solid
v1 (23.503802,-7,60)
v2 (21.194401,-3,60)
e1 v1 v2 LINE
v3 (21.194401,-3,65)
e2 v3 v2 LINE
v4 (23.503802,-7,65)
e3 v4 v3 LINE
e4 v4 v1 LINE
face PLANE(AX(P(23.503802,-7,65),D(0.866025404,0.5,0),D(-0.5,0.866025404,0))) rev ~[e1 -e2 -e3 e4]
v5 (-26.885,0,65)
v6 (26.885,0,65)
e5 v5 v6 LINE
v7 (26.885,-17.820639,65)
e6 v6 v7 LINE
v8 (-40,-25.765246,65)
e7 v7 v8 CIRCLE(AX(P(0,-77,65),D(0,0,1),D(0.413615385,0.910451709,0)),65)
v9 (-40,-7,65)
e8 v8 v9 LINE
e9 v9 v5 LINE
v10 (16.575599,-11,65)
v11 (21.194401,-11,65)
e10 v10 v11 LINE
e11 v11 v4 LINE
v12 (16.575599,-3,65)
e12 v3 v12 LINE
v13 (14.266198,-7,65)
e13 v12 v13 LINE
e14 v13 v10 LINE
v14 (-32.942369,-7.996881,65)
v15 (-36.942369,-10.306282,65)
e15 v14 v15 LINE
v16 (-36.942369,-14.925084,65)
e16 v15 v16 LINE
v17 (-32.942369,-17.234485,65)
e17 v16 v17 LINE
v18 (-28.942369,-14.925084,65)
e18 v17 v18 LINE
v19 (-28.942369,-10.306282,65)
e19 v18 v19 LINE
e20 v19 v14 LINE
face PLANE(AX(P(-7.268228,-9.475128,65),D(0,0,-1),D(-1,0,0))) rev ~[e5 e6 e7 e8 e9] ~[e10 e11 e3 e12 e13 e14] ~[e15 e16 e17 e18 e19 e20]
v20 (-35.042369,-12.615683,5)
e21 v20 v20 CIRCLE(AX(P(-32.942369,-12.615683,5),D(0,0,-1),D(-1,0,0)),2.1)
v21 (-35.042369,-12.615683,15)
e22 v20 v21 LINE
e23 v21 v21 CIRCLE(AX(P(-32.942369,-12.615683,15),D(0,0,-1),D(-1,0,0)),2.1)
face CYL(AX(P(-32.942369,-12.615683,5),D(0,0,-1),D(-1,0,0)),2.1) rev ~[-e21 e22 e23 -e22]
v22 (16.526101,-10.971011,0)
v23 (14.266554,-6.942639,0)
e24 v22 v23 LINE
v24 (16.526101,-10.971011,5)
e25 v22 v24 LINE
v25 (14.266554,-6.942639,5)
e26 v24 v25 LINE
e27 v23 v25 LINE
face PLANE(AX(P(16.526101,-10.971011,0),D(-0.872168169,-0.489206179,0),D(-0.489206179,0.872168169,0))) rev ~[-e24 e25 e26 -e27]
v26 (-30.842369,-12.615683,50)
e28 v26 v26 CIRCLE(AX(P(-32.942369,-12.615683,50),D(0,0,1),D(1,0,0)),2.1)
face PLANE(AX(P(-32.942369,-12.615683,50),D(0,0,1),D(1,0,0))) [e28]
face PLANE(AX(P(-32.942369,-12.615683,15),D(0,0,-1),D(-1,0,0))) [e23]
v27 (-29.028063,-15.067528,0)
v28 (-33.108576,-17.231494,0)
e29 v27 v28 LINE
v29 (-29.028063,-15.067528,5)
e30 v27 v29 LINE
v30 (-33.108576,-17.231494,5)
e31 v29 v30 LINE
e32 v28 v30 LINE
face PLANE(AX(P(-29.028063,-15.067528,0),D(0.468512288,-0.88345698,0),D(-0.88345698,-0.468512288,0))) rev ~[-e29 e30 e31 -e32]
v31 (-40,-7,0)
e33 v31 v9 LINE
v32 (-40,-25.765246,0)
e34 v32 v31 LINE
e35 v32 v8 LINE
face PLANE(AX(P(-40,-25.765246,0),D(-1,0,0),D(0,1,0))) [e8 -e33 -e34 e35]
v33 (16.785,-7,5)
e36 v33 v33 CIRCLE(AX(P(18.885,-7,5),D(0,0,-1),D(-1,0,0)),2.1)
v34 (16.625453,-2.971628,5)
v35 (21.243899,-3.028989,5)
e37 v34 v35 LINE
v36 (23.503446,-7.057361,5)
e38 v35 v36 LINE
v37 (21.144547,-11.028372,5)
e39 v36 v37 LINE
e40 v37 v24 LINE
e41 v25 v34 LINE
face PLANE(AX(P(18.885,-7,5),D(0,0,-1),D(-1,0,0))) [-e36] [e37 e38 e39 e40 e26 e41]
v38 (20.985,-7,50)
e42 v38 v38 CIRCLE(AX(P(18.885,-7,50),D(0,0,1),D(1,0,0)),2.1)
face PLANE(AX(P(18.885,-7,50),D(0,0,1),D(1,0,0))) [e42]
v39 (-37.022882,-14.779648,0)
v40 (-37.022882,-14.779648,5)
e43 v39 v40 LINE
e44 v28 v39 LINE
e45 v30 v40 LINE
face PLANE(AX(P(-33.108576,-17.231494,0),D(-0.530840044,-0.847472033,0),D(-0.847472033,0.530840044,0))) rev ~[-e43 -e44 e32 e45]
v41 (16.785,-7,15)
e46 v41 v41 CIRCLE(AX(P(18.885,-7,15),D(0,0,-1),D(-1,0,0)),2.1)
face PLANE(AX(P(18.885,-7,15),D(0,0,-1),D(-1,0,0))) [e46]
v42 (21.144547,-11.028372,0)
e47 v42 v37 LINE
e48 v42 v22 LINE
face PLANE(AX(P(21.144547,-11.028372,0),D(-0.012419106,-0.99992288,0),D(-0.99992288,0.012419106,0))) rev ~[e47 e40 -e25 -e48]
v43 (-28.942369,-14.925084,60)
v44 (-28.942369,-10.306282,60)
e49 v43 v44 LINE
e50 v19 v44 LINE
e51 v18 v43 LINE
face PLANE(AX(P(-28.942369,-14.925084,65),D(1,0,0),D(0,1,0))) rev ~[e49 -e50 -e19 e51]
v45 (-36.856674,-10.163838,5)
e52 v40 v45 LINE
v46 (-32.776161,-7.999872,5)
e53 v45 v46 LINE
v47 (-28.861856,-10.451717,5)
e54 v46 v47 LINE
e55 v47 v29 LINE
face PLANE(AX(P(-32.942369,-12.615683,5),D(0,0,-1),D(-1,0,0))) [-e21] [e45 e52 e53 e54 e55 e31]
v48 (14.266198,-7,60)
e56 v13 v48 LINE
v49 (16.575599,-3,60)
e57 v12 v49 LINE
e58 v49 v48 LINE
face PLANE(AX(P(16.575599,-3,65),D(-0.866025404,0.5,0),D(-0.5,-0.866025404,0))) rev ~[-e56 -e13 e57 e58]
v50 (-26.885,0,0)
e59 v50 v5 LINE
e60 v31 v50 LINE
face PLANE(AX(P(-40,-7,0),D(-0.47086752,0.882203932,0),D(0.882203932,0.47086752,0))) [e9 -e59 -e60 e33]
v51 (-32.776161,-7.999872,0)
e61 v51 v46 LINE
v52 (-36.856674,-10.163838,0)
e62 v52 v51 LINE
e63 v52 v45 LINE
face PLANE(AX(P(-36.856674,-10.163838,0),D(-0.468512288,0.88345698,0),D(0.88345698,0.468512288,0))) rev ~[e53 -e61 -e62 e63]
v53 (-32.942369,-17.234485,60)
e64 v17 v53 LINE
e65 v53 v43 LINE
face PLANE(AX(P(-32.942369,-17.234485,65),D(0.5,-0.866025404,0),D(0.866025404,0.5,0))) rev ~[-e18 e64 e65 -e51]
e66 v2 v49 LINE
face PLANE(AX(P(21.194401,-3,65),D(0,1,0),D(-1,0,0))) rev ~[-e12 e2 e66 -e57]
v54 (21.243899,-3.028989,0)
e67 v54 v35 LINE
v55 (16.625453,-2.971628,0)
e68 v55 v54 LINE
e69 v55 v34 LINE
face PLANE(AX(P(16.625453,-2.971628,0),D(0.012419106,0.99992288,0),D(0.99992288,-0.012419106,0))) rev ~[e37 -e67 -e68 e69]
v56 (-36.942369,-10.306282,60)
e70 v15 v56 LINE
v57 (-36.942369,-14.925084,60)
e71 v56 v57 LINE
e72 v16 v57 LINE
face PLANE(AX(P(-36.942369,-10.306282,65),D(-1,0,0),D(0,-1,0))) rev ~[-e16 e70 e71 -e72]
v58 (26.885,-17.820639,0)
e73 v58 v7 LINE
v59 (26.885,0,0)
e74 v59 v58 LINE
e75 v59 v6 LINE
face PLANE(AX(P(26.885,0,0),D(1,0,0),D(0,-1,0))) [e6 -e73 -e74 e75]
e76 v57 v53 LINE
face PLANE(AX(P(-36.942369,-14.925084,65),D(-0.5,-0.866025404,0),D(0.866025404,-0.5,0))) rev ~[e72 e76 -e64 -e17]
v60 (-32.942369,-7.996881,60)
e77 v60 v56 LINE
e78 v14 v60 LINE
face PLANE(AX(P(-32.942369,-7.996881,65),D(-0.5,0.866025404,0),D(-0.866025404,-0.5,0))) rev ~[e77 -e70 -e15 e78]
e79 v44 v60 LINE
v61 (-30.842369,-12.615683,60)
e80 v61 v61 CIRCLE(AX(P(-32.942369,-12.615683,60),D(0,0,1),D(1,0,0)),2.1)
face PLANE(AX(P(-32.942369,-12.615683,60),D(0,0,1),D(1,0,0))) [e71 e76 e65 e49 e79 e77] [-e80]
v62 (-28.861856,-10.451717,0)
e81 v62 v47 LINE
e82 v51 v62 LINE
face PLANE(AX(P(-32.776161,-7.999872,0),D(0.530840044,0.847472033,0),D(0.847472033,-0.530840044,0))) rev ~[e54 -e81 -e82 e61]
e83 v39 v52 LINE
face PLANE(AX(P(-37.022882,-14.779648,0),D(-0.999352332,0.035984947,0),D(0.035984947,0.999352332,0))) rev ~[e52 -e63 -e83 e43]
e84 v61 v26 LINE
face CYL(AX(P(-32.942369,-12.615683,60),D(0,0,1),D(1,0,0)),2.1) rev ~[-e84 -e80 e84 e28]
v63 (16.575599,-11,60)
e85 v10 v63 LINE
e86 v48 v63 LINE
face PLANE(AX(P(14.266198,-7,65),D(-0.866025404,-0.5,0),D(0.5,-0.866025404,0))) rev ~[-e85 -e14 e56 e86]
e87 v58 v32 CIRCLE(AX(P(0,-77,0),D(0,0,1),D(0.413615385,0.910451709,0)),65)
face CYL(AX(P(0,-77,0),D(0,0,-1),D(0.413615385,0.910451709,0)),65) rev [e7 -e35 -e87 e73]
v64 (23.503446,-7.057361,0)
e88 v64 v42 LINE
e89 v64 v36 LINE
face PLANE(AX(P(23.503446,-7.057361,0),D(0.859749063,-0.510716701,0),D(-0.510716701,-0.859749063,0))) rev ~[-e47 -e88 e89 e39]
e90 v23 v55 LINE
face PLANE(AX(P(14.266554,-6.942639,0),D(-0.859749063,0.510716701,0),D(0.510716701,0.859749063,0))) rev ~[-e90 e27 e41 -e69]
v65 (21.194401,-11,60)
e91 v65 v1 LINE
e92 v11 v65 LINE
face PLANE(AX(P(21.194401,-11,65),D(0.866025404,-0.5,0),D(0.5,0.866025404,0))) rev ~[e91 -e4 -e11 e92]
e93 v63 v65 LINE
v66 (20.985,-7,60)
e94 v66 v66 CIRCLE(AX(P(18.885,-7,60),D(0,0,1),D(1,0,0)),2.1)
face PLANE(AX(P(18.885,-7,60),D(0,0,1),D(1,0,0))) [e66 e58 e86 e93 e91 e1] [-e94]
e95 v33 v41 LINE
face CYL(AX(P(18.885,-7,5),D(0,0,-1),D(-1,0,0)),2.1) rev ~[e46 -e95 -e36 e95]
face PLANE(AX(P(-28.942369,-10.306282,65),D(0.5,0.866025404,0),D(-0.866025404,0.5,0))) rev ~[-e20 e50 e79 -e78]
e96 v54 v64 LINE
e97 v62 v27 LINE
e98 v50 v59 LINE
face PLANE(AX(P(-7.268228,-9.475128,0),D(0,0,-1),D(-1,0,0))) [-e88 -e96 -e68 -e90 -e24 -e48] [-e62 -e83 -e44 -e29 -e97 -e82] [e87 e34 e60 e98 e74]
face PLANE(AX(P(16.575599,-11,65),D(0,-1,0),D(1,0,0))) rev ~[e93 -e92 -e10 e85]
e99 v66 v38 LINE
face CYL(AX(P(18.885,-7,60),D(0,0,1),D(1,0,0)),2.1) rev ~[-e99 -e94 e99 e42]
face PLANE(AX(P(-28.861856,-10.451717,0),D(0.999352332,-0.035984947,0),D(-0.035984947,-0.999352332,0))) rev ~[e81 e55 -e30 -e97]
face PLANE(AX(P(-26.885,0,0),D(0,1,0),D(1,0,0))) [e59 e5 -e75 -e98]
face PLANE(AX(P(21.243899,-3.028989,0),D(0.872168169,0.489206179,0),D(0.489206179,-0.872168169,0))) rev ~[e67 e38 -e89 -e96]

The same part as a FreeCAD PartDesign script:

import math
import FreeCAD as App
import Part
import Sketcher

V = App.Vector
Q = App.Units.Quantity


def add_polygon(sketch, points):
    """Adds a closed chain of lines whose ends are joined by coincident constraints."""
    first, n = sketch.GeometryCount, len(points)
    for a, b in zip(points, points[1:] + points[:1]):
        sketch.addGeometry(Part.LineSegment(App.Vector(*a, 0), App.Vector(*b, 0)), False)
    for i in range(n):
        sketch.addConstraint(Sketcher.Constraint("Coincident", first + i, 2, first + (i + 1) % n, 1))

doc = App.newDocument("Part")
params = doc.addObject("Spreadsheet::Sheet", "Params")
for row, (alias, value) in enumerate([
    ("sketch1_radius", "65 mm"),
    ("sketch1_width", "53.77 mm"),
    ("pad1_length", "65 mm"),
    ("pocket1_length", "5 mm"),
    ("pocket2_length", "5 mm"),
    ("sketch4_diameter", "4.2 mm"),
    ("pocket3_length", "10 mm"),
    ("sketch5_diameter", "4.2 mm"),
    ("pocket4_length", "10 mm"),
], start=1):
    params.set(f"A{row}", alias)
    params.set(f"B{row}", "=" + value)
    params.setAlias(f"B{row}", alias)

body = doc.addObject("PartDesign::Body", "Body")

# Sketch on XY plane
sketch1 = body.newObject("Sketcher::SketchObject", "Sketch")
sketch1.AttachmentSupport = (doc.getObject("XY_Plane"), [""])
sketch1.MapMode = "FlatFace"
sketch1.addGeometry([
    Part.LineSegment(V(26.885, 0, 0), V(-26.885, 0, 0)),  # 0
    Part.LineSegment(V(-26.885, 0, 0), V(-40, -7, 0)),  # 1
    Part.LineSegment(V(-40, -7, 0), V(-40, -25.765246, 0)),  # 2
    Part.ArcOfCircle(Part.Circle(V(0, -77, 0), V(0, 0, 1), 65), math.radians(65.567849), math.radians(127.979872)),  # 3
    Part.LineSegment(V(26.885, -17.820639, 0), V(26.885, 0, 0)),  # 4
], False)
sketch1.addConstraint([
    Sketcher.Constraint("Coincident", 0, 2, 1, 1),
    Sketcher.Constraint("Coincident", 1, 2, 2, 1),
    Sketcher.Constraint("Coincident", 2, 2, 3, 2),
    Sketcher.Constraint("Coincident", 3, 1, 4, 1),
    Sketcher.Constraint("Coincident", 4, 2, 0, 1),
    Sketcher.Constraint("Horizontal", 0),
    Sketcher.Constraint("Vertical", 2),
    Sketcher.Constraint("Vertical", 4),
    Sketcher.Constraint("Symmetric", 0, 2, 4, 2, -1, 1),
    Sketcher.Constraint("PointOnObject", 3, 3, -2),
    Sketcher.Constraint("Radius", 3, 65.0),
    Sketcher.Constraint("DistanceY", 3, 3, -1, 1, 77.0),
    Sketcher.Constraint("DistanceX", 1, 2, -1, 1, 40.0),
    Sketcher.Constraint("DistanceY", 1, 2, -1, 1, 7.0),
    Sketcher.Constraint("DistanceX", 0, 2, 0, 1, 53.77),
])
sketch1.setExpression("Constraints[10]", "Params.sketch1_radius")
sketch1.setExpression("Constraints[14]", "Params.sketch1_width")
pad1 = body.newObject("PartDesign::Pad", "Pad")
pad1.Profile = sketch1
pad1.setExpression("Length", "Params.pad1_length")

# Sketch on XY plane
sketch2 = body.newObject("Sketcher::SketchObject", "Sketch001")
sketch2.AttachmentSupport = (doc.getObject("XY_Plane"), [""])
sketch2.MapMode = "FlatFace"
sketch2.AttachmentOffset = App.Placement(V(0, 0, 65), App.Rotation())
add_polygon(sketch2, [(-32.942369, -17.234485), (-28.942369, -14.925084), (-28.942369, -10.306282), (-32.942369, -7.996881), (-36.942369, -10.306282), (-36.942369, -14.925084)])  # lines 0-5
add_polygon(sketch2, [(14.266198, -7), (16.575599, -11), (21.194401, -11), (23.503802, -7), (21.194401, -3), (16.575599, -3)])  # lines 6-11
sketch2.addConstraint([
    Sketcher.Constraint("Vertical", 1),
    Sketcher.Constraint("Vertical", 4),
    Sketcher.Constraint("Horizontal", 7),
    Sketcher.Constraint("Horizontal", 10),
    Sketcher.Constraint("Parallel", 0, 3),
    Sketcher.Constraint("Parallel", 2, 5),
    Sketcher.Constraint("Perpendicular", 3, 6),
    Sketcher.Constraint("Perpendicular", 5, 8),
    Sketcher.Constraint("Parallel", 6, 9),
    Sketcher.Constraint("Parallel", 8, 11),
    Sketcher.Constraint("Horizontal", 1, 2, 3, 2),
    Sketcher.Constraint("Horizontal", 0, 2, 4, 2),
    Sketcher.Constraint("Horizontal", 8, 2, 11, 2),
    Sketcher.Constraint("Vertical", 2, 2, 5, 2),
    Sketcher.Constraint("Vertical", 7, 2, 9, 2),
    Sketcher.Constraint("Equal", 10, 1),
    Sketcher.Constraint("Equal", 5, 6),
    Sketcher.Constraint("Angle", 0, Q("30 deg")),
    Sketcher.Constraint("DistanceY", 6, 2, -1, 1, 11.0),
    Sketcher.Constraint("DistanceY", 8, 2, -1, 1, 7.0),
    Sketcher.Constraint("DistanceX", -1, 1, 6, 2, 16.575599),
    Sketcher.Constraint("DistanceX", -1, 1, 7, 2, 21.194401),
    Sketcher.Constraint("DistanceX", 0, 2, -1, 1, 28.942369),
    Sketcher.Constraint("DistanceY", 1, 2, -1, 1, 10.306282),
])
pocket1 = body.newObject("PartDesign::Pocket", "Pocket")
pocket1.Profile = sketch2
pocket1.setExpression("Length", "Params.pocket1_length")

# Sketch on XY plane
sketch3 = body.newObject("Sketcher::SketchObject", "Sketch002")
sketch3.AttachmentSupport = (doc.getObject("XY_Plane"), [""])
sketch3.MapMode = "FlatFace"
add_polygon(sketch3, [(-28.861856, -10.451717), (-29.028063, -15.067528), (-33.108576, -17.231494), (-37.022882, -14.779648), (-36.856674, -10.163838), (-32.776161, -7.999872)])  # lines 0-5
add_polygon(sketch3, [(16.526101, -10.971011), (14.266554, -6.942639), (16.625453, -2.971628), (21.243899, -3.028989), (23.503446, -7.057361), (21.144547, -11.028372)])  # lines 6-11
sketch3.addConstraint([
    Sketcher.Constraint("Parallel", 0, 3),
    Sketcher.Constraint("Parallel", 1, 4),
    Sketcher.Constraint("Parallel", 2, 5),
    Sketcher.Constraint("Parallel", 6, 9),
    Sketcher.Constraint("Parallel", 7, 10),
    Sketcher.Constraint("Parallel", 8, 11),
    Sketcher.Constraint("Equal", 0, 1),
    Sketcher.Constraint("Equal", 1, 2),
    Sketcher.Constraint("Equal", 2, 3),
    Sketcher.Constraint("Equal", 5, 6),
    Sketcher.Constraint("Equal", 6, 7),
    Sketcher.Constraint("Equal", 7, 8),
    Sketcher.Constraint("Equal", 8, 9),
    Sketcher.Constraint("DistanceX", -1, 1, 8, 2, 21.243899),
    Sketcher.Constraint("DistanceX", -1, 1, 11, 2, 16.526101),
    Sketcher.Constraint("DistanceX", 3, 2, 1, 2, 3.748098),
    Sketcher.Constraint("DistanceY", 3, 2, 6, 2, 3.221199),
    Sketcher.Constraint("DistanceX", 6, 2, 7, 2, 2.358899),
    Sketcher.Constraint("DistanceY", 0, 2, 7, 2, 12.0959),
    Sketcher.Constraint("DistanceX", 5, 2, 9, 2, 52.365301),
    Sketcher.Constraint("DistanceY", 0, 2, -1, 1, 15.067528),
    Sketcher.Constraint("DistanceX", 2, 2, -1, 1, 37.022882),
    Sketcher.Constraint("DistanceY", 2, 2, -1, 1, 14.779648),
    Sketcher.Constraint("DistanceX", 4, 2, -1, 1, 32.776161),
])
pocket2 = body.newObject("PartDesign::Pocket", "Pocket001")
pocket2.Profile = sketch3
pocket2.setExpression("Length", "Params.pocket2_length")
pocket2.Reversed = True

# Sketch on XY plane
sketch4 = body.newObject("Sketcher::SketchObject", "Sketch003")
sketch4.AttachmentSupport = (doc.getObject("XY_Plane"), [""])
sketch4.MapMode = "FlatFace"
sketch4.AttachmentOffset = App.Placement(V(0, 0, 5), App.Rotation())
sketch4.addGeometry([
    Part.Circle(V(-32.942369, -12.615683, 0), V(0, 0, 1), 2.1),
    Part.Circle(V(18.885, -7, 0), V(0, 0, 1), 2.1),
], False)
sketch4.addConstraint([
    Sketcher.Constraint("Equal", 0, 1),
    Sketcher.Constraint("Diameter", 0, 4.2),
    Sketcher.Constraint("DistanceY", 1, 3, -1, 1, 7.0),
    Sketcher.Constraint("DistanceX", -1, 1, 1, 3, 18.885),
    Sketcher.Constraint("DistanceX", 0, 3, -1, 1, 32.942369),
    Sketcher.Constraint("DistanceY", 0, 3, -1, 1, 12.615683),
])
sketch4.setExpression("Constraints[1]", "Params.sketch4_diameter")
pocket3 = body.newObject("PartDesign::Pocket", "Pocket002")
pocket3.Profile = sketch4
pocket3.setExpression("Length", "Params.pocket3_length")
pocket3.Reversed = True

# Sketch on XY plane
sketch5 = body.newObject("Sketcher::SketchObject", "Sketch004")
sketch5.AttachmentSupport = (doc.getObject("XY_Plane"), [""])
sketch5.MapMode = "FlatFace"
sketch5.AttachmentOffset = App.Placement(V(0, 0, 60), App.Rotation())
sketch5.addGeometry([
    Part.Circle(V(-32.942369, -12.615683, 0), V(0, 0, 1), 2.1),
    Part.Circle(V(18.885, -7, 0), V(0, 0, 1), 2.1),
], False)
sketch5.addConstraint([
    Sketcher.Constraint("Equal", 0, 1),
    Sketcher.Constraint("Diameter", 0, 4.2),
    Sketcher.Constraint("DistanceY", 1, 3, -1, 1, 7.0),
    Sketcher.Constraint("DistanceX", -1, 1, 1, 3, 18.885),
    Sketcher.Constraint("DistanceX", 0, 3, -1, 1, 32.942369),
    Sketcher.Constraint("DistanceY", 0, 3, -1, 1, 12.615683),
])
sketch5.setExpression("Constraints[1]", "Params.sketch5_diameter")
pocket4 = body.newObject("PartDesign::Pocket", "Pocket003")
pocket4.Profile = sketch5
pocket4.setExpression("Length", "Params.pocket4_length")

doc.recompute()
